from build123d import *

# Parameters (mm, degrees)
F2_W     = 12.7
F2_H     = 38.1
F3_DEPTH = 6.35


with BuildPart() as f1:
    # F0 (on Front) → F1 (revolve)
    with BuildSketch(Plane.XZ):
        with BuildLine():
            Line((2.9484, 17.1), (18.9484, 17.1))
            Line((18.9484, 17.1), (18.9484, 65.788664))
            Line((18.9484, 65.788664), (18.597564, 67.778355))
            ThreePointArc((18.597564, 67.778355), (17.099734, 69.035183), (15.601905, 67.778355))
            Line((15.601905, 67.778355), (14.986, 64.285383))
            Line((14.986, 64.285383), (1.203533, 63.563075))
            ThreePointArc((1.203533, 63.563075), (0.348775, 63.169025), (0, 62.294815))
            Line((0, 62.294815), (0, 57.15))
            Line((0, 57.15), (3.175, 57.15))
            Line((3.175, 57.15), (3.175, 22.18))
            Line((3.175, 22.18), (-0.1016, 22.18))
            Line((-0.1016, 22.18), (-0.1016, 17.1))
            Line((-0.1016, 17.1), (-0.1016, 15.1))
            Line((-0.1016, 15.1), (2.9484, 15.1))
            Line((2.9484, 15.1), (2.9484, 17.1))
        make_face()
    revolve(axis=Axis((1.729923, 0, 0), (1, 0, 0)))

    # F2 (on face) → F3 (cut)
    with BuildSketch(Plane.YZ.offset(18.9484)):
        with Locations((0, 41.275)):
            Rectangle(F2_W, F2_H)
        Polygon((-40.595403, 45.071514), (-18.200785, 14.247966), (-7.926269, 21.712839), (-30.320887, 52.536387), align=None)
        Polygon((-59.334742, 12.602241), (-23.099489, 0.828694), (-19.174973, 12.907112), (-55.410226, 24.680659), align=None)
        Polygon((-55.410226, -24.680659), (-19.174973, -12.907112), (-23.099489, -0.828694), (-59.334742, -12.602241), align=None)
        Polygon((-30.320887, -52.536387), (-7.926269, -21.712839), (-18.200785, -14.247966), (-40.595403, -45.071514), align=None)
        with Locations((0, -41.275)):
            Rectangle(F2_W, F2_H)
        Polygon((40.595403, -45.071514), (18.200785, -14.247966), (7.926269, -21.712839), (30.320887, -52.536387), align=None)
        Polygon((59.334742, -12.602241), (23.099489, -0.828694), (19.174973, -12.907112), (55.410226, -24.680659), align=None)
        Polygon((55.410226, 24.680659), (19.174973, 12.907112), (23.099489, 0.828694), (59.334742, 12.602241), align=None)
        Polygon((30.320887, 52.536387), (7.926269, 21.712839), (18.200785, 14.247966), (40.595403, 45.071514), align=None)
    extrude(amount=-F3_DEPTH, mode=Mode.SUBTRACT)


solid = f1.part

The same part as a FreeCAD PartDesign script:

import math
import FreeCAD as App
import Part
import Sketcher
from FreeCAD import Vector
Q = App.Units.Quantity

doc = App.newDocument("Part")
body = doc.addObject("PartDesign::Body", "Body")

sketch1 = body.newObject("Sketcher::SketchObject", "Sketch")
sketch1.AttachmentSupport = (doc.getObject("XZ_Plane"), [""])
sketch1.MapMode = "FlatFace"
sketch1.addGeometry(Part.LineSegment(Vector(2.9, 17.1, 0), Vector(18.9, 17.1, 0)), False)
sketch1.addGeometry(Part.LineSegment(Vector(18.9, 17.1, 0), Vector(18.9, 65.8, 0)), False)
sketch1.addGeometry(Part.LineSegment(Vector(18.9, 65.8, 0), Vector(18.6, 67.8, 0)), False)
sketch1.addGeometry(Part.ArcOfCircle(Part.Circle(Vector(17.1, 67.5, 0), Vector(0, 0, 1), 1.5), math.radians(10), math.radians(170)), False)
sketch1.addGeometry(Part.LineSegment(Vector(15.6, 67.8, 0), Vector(15, 64.3, 0)), False)
sketch1.addGeometry(Part.LineSegment(Vector(15, 64.3, 0), Vector(1.2, 63.6, 0)), False)
sketch1.addGeometry(Part.ArcOfCircle(Part.Circle(Vector(1.3, 62.3, 0), Vector(0, 0, 1), 1.3), math.radians(93), math.radians(180)), False)
sketch1.addGeometry(Part.LineSegment(Vector(0, 62.3, 0), Vector(0, 57.1, 0)), False)
sketch1.addGeometry(Part.LineSegment(Vector(0, 57.1, 0), Vector(3.2, 57.1, 0)), False)
sketch1.addGeometry(Part.LineSegment(Vector(3.2, 57.1, 0), Vector(3.2, 22.2, 0)), False)
sketch1.addGeometry(Part.LineSegment(Vector(3.2, 22.2, 0), Vector(-0.1, 22.2, 0)), False)
sketch1.addGeometry(Part.LineSegment(Vector(-0.1, 22.2, 0), Vector(-0.1, 15.1, 0)), False)
sketch1.addGeometry(Part.LineSegment(Vector(-0.1, 15.1, 0), Vector(2.9, 15.1, 0)), False)
sketch1.addGeometry(Part.LineSegment(Vector(2.9, 15.1, 0), Vector(2.9, 17.1, 0)), False)
sketch1.addConstraint(Sketcher.Constraint("Coincident", 0, 2, 1, 1))
sketch1.addConstraint(Sketcher.Constraint("Coincident", 1, 2, 2, 1))
sketch1.addConstraint(Sketcher.Constraint("Tangent", 2, 2, 3, 1))
sketch1.addConstraint(Sketcher.Constraint("Tangent", 3, 2, 4, 1))
sketch1.addConstraint(Sketcher.Constraint("Coincident", 4, 2, 5, 1))
sketch1.addConstraint(Sketcher.Constraint("Coincident", 5, 2, 6, 1))
sketch1.addConstraint(Sketcher.Constraint("Tangent", 6, 2, 7, 1))
sketch1.addConstraint(Sketcher.Constraint("Coincident", 7, 2, 8, 1))
sketch1.addConstraint(Sketcher.Constraint("Coincident", 8, 2, 9, 1))
sketch1.addConstraint(Sketcher.Constraint("Coincident", 9, 2, 10, 1))
sketch1.addConstraint(Sketcher.Constraint("Coincident", 10, 2, 11, 1))
sketch1.addConstraint(Sketcher.Constraint("Coincident", 11, 2, 12, 1))
sketch1.addConstraint(Sketcher.Constraint("Coincident", 12, 2, 13, 1))
sketch1.addConstraint(Sketcher.Constraint("Coincident", 13, 2, 0, 1))
sketch1.addConstraint(Sketcher.Constraint("Horizontal", 0))
sketch1.addConstraint(Sketcher.Constraint("Vertical", 1))
sketch1.addConstraint(Sketcher.Constraint("Vertical", 7))
sketch1.addConstraint(Sketcher.Constraint("Horizontal", 8))
sketch1.addConstraint(Sketcher.Constraint("Vertical", 9))
sketch1.addConstraint(Sketcher.Constraint("Horizontal", 10))
sketch1.addConstraint(Sketcher.Constraint("Vertical", 11))
sketch1.addConstraint(Sketcher.Constraint("Horizontal", 12))
sketch1.addConstraint(Sketcher.Constraint("Vertical", 13))
sketch1.addConstraint(Sketcher.Constraint("PointOnObject", 6, 2, -2))
sketch1.addConstraint(Sketcher.Constraint("Horizontal", 2, 2, 3, 2))
sketch1.addConstraint(Sketcher.Constraint("Radius", 6, Q("0.0500001 in")))
sketch1.addConstraint(Sketcher.Constraint("Angle", 2, Q("99.999994 deg")))
sketch1.addConstraint(Sketcher.Constraint("Angle", 5, Q("-177.000002 deg")))
sketch1.addConstraint(Sketcher.Constraint("DistanceY", 0, 2, 9, 2, Q("0.2 in")))
sketch1.addConstraint(Sketcher.Constraint("DistanceX", 8, 1, 8, 2, Q("0.125 in")))
sketch1.addConstraint(Sketcher.Constraint("DistanceX", 10, 2, 10, 1, Q("0.129 in")))
sketch1.addConstraint(Sketcher.Constraint("DistanceX", -1, 1, 4, 2, Q("0.59 in")))
sketch1.addConstraint(Sketcher.Constraint("DistanceY", -1, 1, 7, 2, Q("2.25 in")))
sketch1.addConstraint(Sketcher.Constraint("DistanceX", 10, 2, 0, 2, Q("0.75 in")))
sketch1.addConstraint(Sketcher.Constraint("DistanceX", 0, 1, 0, 2, Q("16 mm")))
sketch1.addConstraint(Sketcher.Constraint("DistanceY", 9, 2, 9, 1, Q("34.97 mm")))
sketch1.addConstraint(Sketcher.Constraint("DistanceY", 11, 2, 11, 1, Q("7.08 mm")))
sketch1.addConstraint(Sketcher.Constraint("Radius", 3, Q("1.520936 mm")))
sketch1.addConstraint(Sketcher.Constraint("DistanceX", 5, 2, 3, 3, Q("15.896202 mm")))
sketch1.addConstraint(Sketcher.Constraint("Distance", 5, Q("13.801381 mm")))
sketch1.addConstraint(Sketcher.Constraint("DistanceY", 1, 1, 1, 2, Q("48.688664 mm")))
revolution = body.newObject("PartDesign::Revolution", "Revolution")
revolution.Profile = sketch1
revolution.ReferenceAxis = (sketch1, ["H_Axis"])
revolution.Angle = 360

sketch2 = body.newObject("Sketcher::SketchObject", "Sketch001")
sketch2.AttachmentSupport = (doc.getObject("YZ_Plane"), [""])
sketch2.MapMode = "FlatFace"
sketch2.AttachmentOffset = App.Placement(Vector(0, 0, 0.746 * 25.4), App.Rotation())
sketch2.addGeometry(Part.LineSegment(Vector(-6, 60, 0), Vector(-6, 22, 0)), False)
sketch2.addGeometry(Part.LineSegment(Vector(-6, 22, 0), Vector(6, 22, 0)), False)
sketch2.addGeometry(Part.LineSegment(Vector(6, 22, 0), Vector(6, 60, 0)), False)
sketch2.addGeometry(Part.LineSegment(Vector(6, 60, 0), Vector(-6, 60, 0)), False)
sketch2.addGeometry(Part.LineSegment(Vector(-41, 45, 0), Vector(-18, 14, 0)), False)
sketch2.addGeometry(Part.LineSegment(Vector(-18, 14, 0), Vector(-8, 22, 0)), False)
sketch2.addGeometry(Part.LineSegment(Vector(-8, 22, 0), Vector(-30, 53, 0)), False)
sketch2.addGeometry(Part.LineSegment(Vector(-30, 53, 0), Vector(-41, 45, 0)), False)
sketch2.addGeometry(Part.LineSegment(Vector(-59, 13, 0), Vector(-23, 1, 0)), False)
sketch2.addGeometry(Part.LineSegment(Vector(-23, 1, 0), Vector(-19, 13, 0)), False)
sketch2.addGeometry(Part.LineSegment(Vector(-19, 13, 0), Vector(-55, 25, 0)), False)
sketch2.addGeometry(Part.LineSegment(Vector(-55, 25, 0), Vector(-59, 13, 0)), False)
sketch2.addGeometry(Part.LineSegment(Vector(-55, -25, 0), Vector(-19, -13, 0)), False)
sketch2.addGeometry(Part.LineSegment(Vector(-19, -13, 0), Vector(-23, -1, 0)), False)
sketch2.addGeometry(Part.LineSegment(Vector(-23, -1, 0), Vector(-59, -13, 0)), False)
sketch2.addGeometry(Part.LineSegment(Vector(-59, -13, 0), Vector(-55, -25, 0)), False)
sketch2.addGeometry(Part.LineSegment(Vector(-30, -53, 0), Vector(-8, -22, 0)), False)
sketch2.addGeometry(Part.LineSegment(Vector(-8, -22, 0), Vector(-18, -14, 0)), False)
sketch2.addGeometry(Part.LineSegment(Vector(-18, -14, 0), Vector(-41, -45, 0)), False)
sketch2.addGeometry(Part.LineSegment(Vector(-41, -45, 0), Vector(-30, -53, 0)), False)
sketch2.addGeometry(Part.LineSegment(Vector(-6, -22, 0), Vector(-6, -60, 0)), False)
sketch2.addGeometry(Part.LineSegment(Vector(-6, -60, 0), Vector(6, -60, 0)), False)
sketch2.addGeometry(Part.LineSegment(Vector(6, -60, 0), Vector(6, -22, 0)), False)
sketch2.addGeometry(Part.LineSegment(Vector(6, -22, 0), Vector(-6, -22, 0)), False)
sketch2.addGeometry(Part.LineSegment(Vector(41, -45, 0), Vector(18, -14, 0)), False)
sketch2.addGeometry(Part.LineSegment(Vector(18, -14, 0), Vector(8, -22, 0)), False)
sketch2.addGeometry(Part.LineSegment(Vector(8, -22, 0), Vector(30, -53, 0)), False)
sketch2.addGeometry(Part.LineSegment(Vector(30, -53, 0), Vector(41, -45, 0)), False)
sketch2.addGeometry(Part.LineSegment(Vector(59, -13, 0), Vector(23, -1, 0)), False)
sketch2.addGeometry(Part.LineSegment(Vector(23, -1, 0), Vector(19, -13, 0)), False)
sketch2.addGeometry(Part.LineSegment(Vector(19, -13, 0), Vector(55, -25, 0)), False)
sketch2.addGeometry(Part.LineSegment(Vector(55, -25, 0), Vector(59, -13, 0)), False)
sketch2.addGeometry(Part.LineSegment(Vector(55, 25, 0), Vector(19, 13, 0)), False)
sketch2.addGeometry(Part.LineSegment(Vector(19, 13, 0), Vector(23, 1, 0)), False)
sketch2.addGeometry(Part.LineSegment(Vector(23, 1, 0), Vector(59, 13, 0)), False)
sketch2.addGeometry(Part.LineSegment(Vector(59, 13, 0), Vector(55, 25, 0)), False)
sketch2.addGeometry(Part.LineSegment(Vector(30, 53, 0), Vector(8, 22, 0)), False)
sketch2.addGeometry(Part.LineSegment(Vector(8, 22, 0), Vector(18, 14, 0)), False)
sketch2.addGeometry(Part.LineSegment(Vector(18, 14, 0), Vector(41, 45, 0)), False)
sketch2.addGeometry(Part.LineSegment(Vector(41, 45, 0), Vector(30, 53, 0)), False)
sketch2.addConstraint(Sketcher.Constraint("Coincident", 0, 2, 1, 1))
sketch2.addConstraint(Sketcher.Constraint("Coincident", 1, 2, 2, 1))
sketch2.addConstraint(Sketcher.Constraint("Coincident", 2, 2, 3, 1))
sketch2.addConstraint(Sketcher.Constraint("Coincident", 3, 2, 0, 1))
sketch2.addConstraint(Sketcher.Constraint("Coincident", 4, 2, 5, 1))
sketch2.addConstraint(Sketcher.Constraint("Coincident", 5, 2, 6, 1))
sketch2.addConstraint(Sketcher.Constraint("Coincident", 6, 2, 7, 1))
sketch2.addConstraint(Sketcher.Constraint("Coincident", 7, 2, 4, 1))
sketch2.addConstraint(Sketcher.Constraint("Coincident", 8, 2, 9, 1))
sketch2.addConstraint(Sketcher.Constraint("Coincident", 9, 2, 10, 1))
sketch2.addConstraint(Sketcher.Constraint("Coincident", 10, 2, 11, 1))
sketch2.addConstraint(Sketcher.Constraint("Coincident", 11, 2, 8, 1))
sketch2.addConstraint(Sketcher.Constraint("Coincident", 12, 2, 13, 1))
sketch2.addConstraint(Sketcher.Constraint("Coincident", 13, 2, 14, 1))
sketch2.addConstraint(Sketcher.Constraint("Coincident", 14, 2, 15, 1))
sketch2.addConstraint(Sketcher.Constraint("Coincident", 15, 2, 12, 1))
sketch2.addConstraint(Sketcher.Constraint("Coincident", 16, 2, 17, 1))
sketch2.addConstraint(Sketcher.Constraint("Coincident", 17, 2, 18, 1))
sketch2.addConstraint(Sketcher.Constraint("Coincident", 18, 2, 19, 1))
sketch2.addConstraint(Sketcher.Constraint("Coincident", 19, 2, 16, 1))
sketch2.addConstraint(Sketcher.Constraint("Coincident", 20, 2, 21, 1))
sketch2.addConstraint(Sketcher.Constraint("Coincident", 21, 2, 22, 1))
sketch2.addConstraint(Sketcher.Constraint("Coincident", 22, 2, 23, 1))
sketch2.addConstraint(Sketcher.Constraint("Coincident", 23, 2, 20, 1))
sketch2.addConstraint(Sketcher.Constraint("Coincident", 24, 2, 25, 1))
sketch2.addConstraint(Sketcher.Constraint("Coincident", 25, 2, 26, 1))
sketch2.addConstraint(Sketcher.Constraint("Coincident", 26, 2, 27, 1))
sketch2.addConstraint(Sketcher.Constraint("Coincident", 27, 2, 24, 1))
sketch2.addConstraint(Sketcher.Constraint("Coincident", 28, 2, 29, 1))
sketch2.addConstraint(Sketcher.Constraint("Coincident", 29, 2, 30, 1))
sketch2.addConstraint(Sketcher.Constraint("Coincident", 30, 2, 31, 1))
sketch2.addConstraint(Sketcher.Constraint("Coincident", 31, 2, 28, 1))
sketch2.addConstraint(Sketcher.Constraint("Coincident", 32, 2, 33, 1))
sketch2.addConstraint(Sketcher.Constraint("Coincident", 33, 2, 34, 1))
sketch2.addConstraint(Sketcher.Constraint("Coincident", 34, 2, 35, 1))
sketch2.addConstraint(Sketcher.Constraint("Coincident", 35, 2, 32, 1))
sketch2.addConstraint(Sketcher.Constraint("Coincident", 36, 2, 37, 1))
sketch2.addConstraint(Sketcher.Constraint("Coincident", 37, 2, 38, 1))
sketch2.addConstraint(Sketcher.Constraint("Coincident", 38, 2, 39, 1))
sketch2.addConstraint(Sketcher.Constraint("Coincident", 39, 2, 36, 1))
sketch2.addConstraint(Sketcher.Constraint("Vertical", 0))
sketch2.addConstraint(Sketcher.Constraint("Horizontal", 1))
sketch2.addConstraint(Sketcher.Constraint("Vertical", 2))
sketch2.addConstraint(Sketcher.Constraint("Horizontal", 3))
sketch2.addConstraint(Sketcher.Constraint("Vertical", 20))
sketch2.addConstraint(Sketcher.Constraint("Horizontal", 21))
sketch2.addConstraint(Sketcher.Constraint("Vertical", 22))
sketch2.addConstraint(Sketcher.Constraint("Horizontal", 23))
sketch2.addConstraint(Sketcher.Constraint("Symmetric", 2, 2, 20, 2, -1, 1))
sketch2.addConstraint(Sketcher.Constraint("Symmetric", 0, 2, 22, 2, -1, 1))
sketch2.addConstraint(Sketcher.Constraint("Symmetric", 4, 2, 24, 2, -1, 1))
sketch2.addConstraint(Sketcher.Constraint("Symmetric", 5, 2, 25, 2, -1, 1))
sketch2.addConstraint(Sketcher.Constraint("Symmetric", 6, 2, 26, 2, -1, 1))
sketch2.addConstraint(Sketcher.Constraint("Symmetric", 7, 2, 27, 2, -1, 1))
sketch2.addConstraint(Sketcher.Constraint("Symmetric", 8, 2, 28, 2, -1, 1))
sketch2.addConstraint(Sketcher.Constraint("Symmetric", 9, 2, 29, 2, -1, 1))
sketch2.addConstraint(Sketcher.Constraint("Symmetric", 10, 2, 30, 2, -1, 1))
sketch2.addConstraint(Sketcher.Constraint("Symmetric", 11, 2, 31, 2, -1, 1))
sketch2.addConstraint(Sketcher.Constraint("Symmetric", 12, 2, 32, 2, -1, 1))
sketch2.addConstraint(Sketcher.Constraint("Symmetric", 13, 2, 33, 2, -1, 1))
sketch2.addConstraint(Sketcher.Constraint("Symmetric", 14, 2, 34, 2, -1, 1))
sketch2.addConstraint(Sketcher.Constraint("Symmetric", 15, 2, 35, 2, -1, 1))
sketch2.addConstraint(Sketcher.Constraint("Symmetric", 16, 2, 36, 2, -1, 1))
sketch2.addConstraint(Sketcher.Constraint("Symmetric", 17, 2, 37, 2, -1, 1))
sketch2.addConstraint(Sketcher.Constraint("Symmetric", 18, 2, 38, 2, -1, 1))
sketch2.addConstraint(Sketcher.Constraint("Symmetric", 19, 2, 39, 2, -1, 1))
sketch2.addConstraint(Sketcher.Constraint("Symmetric", 17, 2, 24, 2, -2))
sketch2.addConstraint(Sketcher.Constraint("Symmetric", 16, 2, 25, 2, -2))
sketch2.addConstraint(Sketcher.Constraint("Symmetric", 19, 2, 26, 2, -2))
sketch2.addConstraint(Sketcher.Constraint("Symmetric", 18, 2, 27, 2, -2))
sketch2.addConstraint(Sketcher.Constraint("Symmetric", 13, 2, 28, 2, -2))
sketch2.addConstraint(Sketcher.Constraint("Symmetric", 12, 2, 29, 2, -2))
sketch2.addConstraint(Sketcher.Constraint("Symmetric", 15, 2, 30, 2, -2))
sketch2.addConstraint(Sketcher.Constraint("Symmetric", 14, 2, 31, 2, -2))
sketch2.addConstraint(Sketcher.Constraint("Perpendicular", 4, 5))
sketch2.addConstraint(Sketcher.Constraint("Perpendicular", 5, 6))
sketch2.addConstraint(Sketcher.Constraint("Perpendicular", 6, 7))
sketch2.addConstraint(Sketcher.Constraint("Perpendicular", 8, 9))
sketch2.addConstraint(Sketcher.Constraint("Perpendicular", 9, 10))
sketch2.addConstraint(Sketcher.Constraint("Perpendicular", 10, 11))
sketch2.addConstraint(Sketcher.Constraint("Vertical", 3, 2, 20, 2))
sketch2.addConstraint(Sketcher.Constraint("Equal", 6, 8))
sketch2.addConstraint(Sketcher.Constraint("Equal", 7, 9))
sketch2.addConstraint(Sketcher.Constraint("DistanceX", 1, 1, 1, 2, Q("0.5 in")))
sketch2.addConstraint(Sketcher.Constraint("DistanceY", 0, 2, 0, 1, Q("1.5 in")))
sketch2.addConstraint(Sketcher.Constraint("Angle", 4, Q("-54.000001 deg")))
sketch2.addConstraint(Sketcher.Constraint("Angle", 8, Q("-17.999999 deg")))
sketch2.addConstraint(Sketcher.Constraint("Distance", 4, Q("1.5 in")))
sketch2.addConstraint(Sketcher.Constraint("Distance", 5, Q("0.5 in")))
sketch2.addConstraint(Sketcher.Constraint("DistanceY", -1, 1, 0, 2, Q("0.875 in")))
sketch2.addConstraint(Sketcher.Constraint("DistanceY", 14, 2, 10, 2, Q("37.2829 mm")))
sketch2.addConstraint(Sketcher.Constraint("DistanceX", 5, 2, -1, 1, Q("7.926269 mm")))
sketch2.addConstraint(Sketcher.Constraint("DistanceY", -1, 1, 5, 2, Q("21.712839 mm")))
sketch2.addConstraint(Sketcher.Constraint("DistanceX", 8, 2, -1, 1, Q("23.099489 mm")))
pocket1 = body.newObject("PartDesign::Pocket", "Pocket")
pocket1.Profile = sketch2
pocket1.Length = Q("0.25 in")

doc.recompute()
